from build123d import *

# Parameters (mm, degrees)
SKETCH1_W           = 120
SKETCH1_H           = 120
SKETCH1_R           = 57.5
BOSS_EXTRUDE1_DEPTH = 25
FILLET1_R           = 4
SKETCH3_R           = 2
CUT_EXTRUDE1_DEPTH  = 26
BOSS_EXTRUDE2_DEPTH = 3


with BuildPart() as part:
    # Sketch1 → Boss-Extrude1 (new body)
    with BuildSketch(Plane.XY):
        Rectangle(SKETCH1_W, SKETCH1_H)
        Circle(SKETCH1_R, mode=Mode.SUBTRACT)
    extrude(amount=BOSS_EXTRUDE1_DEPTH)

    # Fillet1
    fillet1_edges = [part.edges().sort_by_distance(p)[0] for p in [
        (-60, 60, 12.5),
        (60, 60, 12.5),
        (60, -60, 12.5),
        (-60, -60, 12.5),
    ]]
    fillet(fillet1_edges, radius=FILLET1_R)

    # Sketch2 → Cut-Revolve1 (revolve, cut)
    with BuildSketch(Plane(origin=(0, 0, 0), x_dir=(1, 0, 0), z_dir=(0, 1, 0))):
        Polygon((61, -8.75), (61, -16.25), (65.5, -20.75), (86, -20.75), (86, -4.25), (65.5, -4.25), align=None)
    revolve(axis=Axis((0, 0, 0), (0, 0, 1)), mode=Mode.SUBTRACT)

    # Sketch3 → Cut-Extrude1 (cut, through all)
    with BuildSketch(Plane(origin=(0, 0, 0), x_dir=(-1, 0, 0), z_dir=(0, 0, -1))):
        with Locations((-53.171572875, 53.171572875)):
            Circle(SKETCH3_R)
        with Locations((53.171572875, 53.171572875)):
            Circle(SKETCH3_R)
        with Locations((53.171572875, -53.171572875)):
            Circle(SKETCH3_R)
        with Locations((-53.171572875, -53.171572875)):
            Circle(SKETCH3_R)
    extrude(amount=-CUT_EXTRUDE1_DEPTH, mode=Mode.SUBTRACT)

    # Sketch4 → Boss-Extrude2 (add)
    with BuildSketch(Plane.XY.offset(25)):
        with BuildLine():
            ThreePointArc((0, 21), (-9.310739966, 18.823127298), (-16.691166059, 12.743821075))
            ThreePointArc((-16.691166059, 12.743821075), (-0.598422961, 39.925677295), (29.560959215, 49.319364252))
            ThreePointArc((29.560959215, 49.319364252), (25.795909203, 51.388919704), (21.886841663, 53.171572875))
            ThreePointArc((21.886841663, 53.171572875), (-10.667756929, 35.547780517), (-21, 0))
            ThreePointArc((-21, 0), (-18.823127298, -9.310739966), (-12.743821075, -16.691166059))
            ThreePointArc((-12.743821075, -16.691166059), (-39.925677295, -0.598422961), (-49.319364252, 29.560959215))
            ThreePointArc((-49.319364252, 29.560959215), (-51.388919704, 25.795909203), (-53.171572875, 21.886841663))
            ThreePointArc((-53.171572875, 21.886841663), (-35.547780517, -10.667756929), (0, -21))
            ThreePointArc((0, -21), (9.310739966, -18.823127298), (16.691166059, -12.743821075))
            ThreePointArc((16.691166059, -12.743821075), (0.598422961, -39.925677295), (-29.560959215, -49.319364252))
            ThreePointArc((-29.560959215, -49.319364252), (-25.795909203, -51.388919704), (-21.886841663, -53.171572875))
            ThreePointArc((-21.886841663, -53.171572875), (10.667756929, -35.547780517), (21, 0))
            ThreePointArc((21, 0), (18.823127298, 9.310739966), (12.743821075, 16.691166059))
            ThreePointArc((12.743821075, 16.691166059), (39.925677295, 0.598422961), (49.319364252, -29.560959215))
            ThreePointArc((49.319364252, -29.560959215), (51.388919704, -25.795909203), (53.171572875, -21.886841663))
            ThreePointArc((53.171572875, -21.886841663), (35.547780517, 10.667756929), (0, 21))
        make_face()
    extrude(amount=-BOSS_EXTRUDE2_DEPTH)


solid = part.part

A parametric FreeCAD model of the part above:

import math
import FreeCAD as App
import Part
import Sketcher
from FreeCAD import Vector


def edges_at(feature, points):
    """Names of the edges that pass closest to the given points."""
    edges = feature.Shape.Edges
    near = lambda p: min(range(len(edges)), key=lambda i: edges[i].distToShape(Part.Vertex(*p))[0])
    return sorted({f"Edge{near(p) + 1}" for p in points})


def add_polygon(sketch, points):
    """Adds a closed chain of lines whose ends are joined by coincident constraints."""
    first, n = sketch.GeometryCount, len(points)
    for a, b in zip(points, points[1:] + points[:1]):
        sketch.addGeometry(Part.LineSegment(App.Vector(*a, 0), App.Vector(*b, 0)), False)
    for i in range(n):
        sketch.addConstraint(Sketcher.Constraint("Coincident", first + i, 2, first + (i + 1) % n, 1))

doc = App.newDocument("Part")
body = doc.addObject("PartDesign::Body", "Body")

# Sketch on XY plane
sketch1 = doc.addObject("Sketcher::SketchObject", "Sketch")
body.addObject(sketch1)
sketch1.AttachmentSupport = (doc.XY_Plane, [""])
sketch1.MapMode = "FlatFace"
add_polygon(sketch1, [(-60, 60), (-60, -60), (60, -60), (60, 60)])  # lines 0-3
sketch1.addGeometry(Part.Circle(Vector(0, 0, 0), Vector(0, 0, 1), 58), False)  # 4
sketch1.addConstraint([
    Sketcher.Constraint("Vertical", 0),
    Sketcher.Constraint("Horizontal", 1),
    Sketcher.Constraint("Vertical", 2),
    Sketcher.Constraint("Horizontal", 3),
    Sketcher.Constraint("Coincident", 4, 3, -1, 1),
    Sketcher.Constraint("Symmetric", 0, 2, 2, 2, -1, 1),
    Sketcher.Constraint("Equal", 3, 0),
    Sketcher.Constraint("Diameter", 4, 115.0),
    Sketcher.Constraint("DistanceX", 1, 1, 1, 2, 120.0),
])
pad1 = doc.addObject("PartDesign::Pad", "Pad")
body.addObject(pad1)
pad1.Profile = sketch1
pad1.Length = 25
doc.recompute()

fillet = doc.addObject("PartDesign::Fillet", "Fillet")
body.addObject(fillet)
fillet.Base = (pad1, edges_at(pad1, [
    (-60, 60, 12.5),
    (60, 60, 12.5),
    (60, -60, 12.5),
    (-60, -60, 12.5),
]))
fillet.Radius = 4

# Sketch on XZ plane
sketch2 = doc.addObject("Sketcher::SketchObject", "Sketch001")
body.addObject(sketch2)
sketch2.AttachmentSupport = (doc.XZ_Plane, [""])
sketch2.MapMode = "FlatFace"
add_polygon(sketch2, [(61, 9), (61, 16), (66, 21), (86, 21), (86, 4), (66, 4)])  # lines 0-5
sketch2.addConstraint([
    Sketcher.Constraint("Vertical", 0),
    Sketcher.Constraint("Horizontal", 2),
    Sketcher.Constraint("Vertical", 3),
    Sketcher.Constraint("Horizontal", 4),
    Sketcher.Constraint("Perpendicular", 1, 5),
    Sketcher.Constraint("Vertical", 1, 2, 4, 2),
    Sketcher.Constraint("Equal", 1, 5),
    Sketcher.Constraint("DistanceX", 2, 1, 2, 2, 20.5),
    Sketcher.Constraint("DistanceY", 0, 1, 0, 2, 7.5),
    Sketcher.Constraint("DistanceY", 3, 2, 3, 1, 16.5),
    Sketcher.Constraint("DistanceX", -1, 1, 0, 2, 61.0),
    Sketcher.Constraint("DistanceY", -1, 1, 0, 2, 16.25),
])
groove = doc.addObject("PartDesign::Groove", "Groove")
body.addObject(groove)
groove.Profile = sketch2
groove.ReferenceAxis = (sketch2, ["V_Axis"])
groove.Angle = 360

# Sketch on XY plane
sketch3 = doc.addObject("Sketcher::SketchObject", "Sketch002")
body.addObject(sketch3)
sketch3.AttachmentSupport = (doc.XY_Plane, [""])
sketch3.MapMode = "FlatFace"
sketch3.addGeometry([
    Part.Circle(Vector(53.2, 53.2, 0), Vector(0, 0, 1), 2),
    Part.Circle(Vector(-53.2, 53.2, 0), Vector(0, 0, 1), 2),
    Part.Circle(Vector(-53.2, -53.2, 0), Vector(0, 0, 1), 2),
    Part.Circle(Vector(53.2, -53.2, 0), Vector(0, 0, 1), 2),
], False)
sketch3.addConstraint([
    Sketcher.Constraint("Equal", 0, 1),
    Sketcher.Constraint("Equal", 1, 2),
    Sketcher.Constraint("Equal", 2, 3),
    Sketcher.Constraint("Symmetric", 0, 3, 2, 3, -1, 1),
    Sketcher.Constraint("Symmetric", 1, 3, 3, 3, -1, 1),
    Sketcher.Constraint("Symmetric", 0, 3, 1, 3, -2),
    Sketcher.Constraint("Diameter", 0, 4.0),
    Sketcher.Constraint("DistanceX", -1, 1, 0, 3, 53.171573),
    Sketcher.Constraint("DistanceY", -1, 1, 0, 3, 53.171573),
])
pocket1 = doc.addObject("PartDesign::Pocket", "Pocket")
body.addObject(pocket1)
pocket1.Profile = sketch3
pocket1.Type = "ThroughAll"
pocket1.Reversed = True

# Sketch on XY plane
sketch4 = doc.addObject("Sketcher::SketchObject", "Sketch003")
body.addObject(sketch4)
sketch4.AttachmentSupport = (doc.XY_Plane, [""])
sketch4.MapMode = "FlatFace"
sketch4.AttachmentOffset = App.Placement(Vector(0, 0, 25), App.Rotation())
sketch4.addGeometry([
    Part.ArcOfCircle(Part.Circle(Vector(0, 0, 0), Vector(0, 0, 1), 21), math.radians(90), math.radians(143)),  # 0
    Part.ArcOfCircle(Part.Circle(Vector(27, 5, 0), Vector(0, 0, 1), 44), math.radians(86), math.radians(170)),  # 1
    Part.ArcOfCircle(Part.Circle(Vector(0, 0, 0), Vector(0, 0, 1), 58), math.radians(59.06), math.radians(67.63)),  # 2
    Part.ArcOfCircle(Part.Circle(Vector(27, 5, 0), Vector(0, 0, 1), 48), math.radians(96), math.radians(186)),  # 3
    Part.ArcOfCircle(Part.Circle(Vector(0, 0, 0), Vector(0, 0, 1), 21), math.radians(-180), math.radians(-127)),  # 4
    Part.ArcOfCircle(Part.Circle(Vector(-5, 27, 0), Vector(0, 0, 1), 44), math.radians(176), math.radians(260)),  # 5
    Part.ArcOfCircle(Part.Circle(Vector(0, 0, 0), Vector(0, 0, 1), 58), math.radians(149.06), math.radians(157.63)),  # 6
    Part.ArcOfCircle(Part.Circle(Vector(-5, 27, 0), Vector(0, 0, 1), 48), math.radians(-174), math.radians(-84)),  # 7
    Part.ArcOfCircle(Part.Circle(Vector(0, 0, 0), Vector(0, 0, 1), 21), math.radians(-90), math.radians(-37)),  # 8
    Part.ArcOfCircle(Part.Circle(Vector(-27, -5, 0), Vector(0, 0, 1), 44), math.radians(-94), math.radians(-10)),  # 9
    Part.ArcOfCircle(Part.Circle(Vector(0, 0, 0), Vector(0, 0, 1), 58), math.radians(-120.94), math.radians(-112.37)),  # 10
    Part.ArcOfCircle(Part.Circle(Vector(-27, -5, 0), Vector(0, 0, 1), 48), math.radians(-84), math.radians(6)),  # 11
    Part.ArcOfCircle(Part.Circle(Vector(0, 0, 0), Vector(0, 0, 1), 21), math.radians(0), math.radians(53)),  # 12
    Part.ArcOfCircle(Part.Circle(Vector(5, -27, 0), Vector(0, 0, 1), 44), math.radians(-4), math.radians(80)),  # 13
    Part.ArcOfCircle(Part.Circle(Vector(0, 0, 0), Vector(0, 0, 1), 58), math.radians(-30.94), math.radians(-22.37)),  # 14
    Part.ArcOfCircle(Part.Circle(Vector(5, -27, 0), Vector(0, 0, 1), 48), math.radians(6), math.radians(96)),  # 15
], False)
sketch4.addConstraint([
    Sketcher.Constraint("Coincident", 0, 2, 1, 2),
    Sketcher.Constraint("Coincident", 1, 1, 2, 1),
    Sketcher.Constraint("Coincident", 2, 2, 3, 1),
    Sketcher.Constraint("Coincident", 3, 2, 4, 1),
    Sketcher.Constraint("Coincident", 4, 2, 5, 2),
    Sketcher.Constraint("Coincident", 5, 1, 6, 1),
    Sketcher.Constraint("Coincident", 6, 2, 7, 1),
    Sketcher.Constraint("Coincident", 7, 2, 8, 1),
    Sketcher.Constraint("Coincident", 8, 2, 9, 2),
    Sketcher.Constraint("Coincident", 9, 1, 10, 1),
    Sketcher.Constraint("Coincident", 10, 2, 11, 1),
    Sketcher.Constraint("Coincident", 11, 2, 12, 1),
    Sketcher.Constraint("Coincident", 12, 2, 13, 2),
    Sketcher.Constraint("Coincident", 13, 1, 14, 1),
    Sketcher.Constraint("Coincident", 14, 2, 15, 1),
    Sketcher.Constraint("Coincident", 15, 2, 0, 1),
    Sketcher.Constraint("Coincident", 0, 3, -1, 1),
    Sketcher.Constraint("Coincident", 2, 3, -1, 1),
    Sketcher.Constraint("Coincident", 4, 3, -1, 1),
    Sketcher.Constraint("Coincident", 6, 3, -1, 1),
    Sketcher.Constraint("Coincident", 8, 3, -1, 1),
    Sketcher.Constraint("Coincident", 10, 3, -1, 1),
    Sketcher.Constraint("Coincident", 12, 3, -1, 1),
    Sketcher.Constraint("Coincident", 14, 3, -1, 1),
    Sketcher.Constraint("Coincident", 3, 3, 1, 3),
    Sketcher.Constraint("Coincident", 7, 3, 5, 3),
    Sketcher.Constraint("Coincident", 11, 3, 9, 3),
    Sketcher.Constraint("Coincident", 15, 3, 13, 3),
    Sketcher.Constraint("Equal", 0, 4),
    Sketcher.Constraint("Equal", 1, 5),
    Sketcher.Constraint("Equal", 2, 6),
    Sketcher.Constraint("Equal", 3, 7),
    Sketcher.Constraint("Equal", 4, 8),
    Sketcher.Constraint("Equal", 5, 9),
    Sketcher.Constraint("Equal", 6, 10),
    Sketcher.Constraint("Equal", 7, 11),
    Sketcher.Constraint("Equal", 8, 12),
    Sketcher.Constraint("Equal", 9, 13),
    Sketcher.Constraint("Equal", 10, 14),
    Sketcher.Constraint("Equal", 11, 15),
    Sketcher.Constraint("Symmetric", 1, 3, 9, 3, -1, 1),
    Sketcher.Constraint("Symmetric", 5, 3, 13, 3, -1, 1),
    Sketcher.Constraint("PointOnObject", 3, 2, -1),
    Sketcher.Constraint("PointOnObject", 7, 2, -2),
    Sketcher.Constraint("Radius", 0, 21.0),
    Sketcher.Constraint("Radius", 1, 44.0),
    Sketcher.Constraint("Radius", 3, 48.0),
    Sketcher.Constraint("Radius", 2, 57.5),
    Sketcher.Constraint("DistanceY", 0, 2, 5, 3, 13.950002),
    Sketcher.Constraint("DistanceX", 9, 3, 4, 2, 13.950002),
])
pad2 = doc.addObject("PartDesign::Pad", "Pad001")
body.addObject(pad2)
pad2.Profile = sketch4
pad2.Length = 3
pad2.Reversed = True

doc.recompute()
